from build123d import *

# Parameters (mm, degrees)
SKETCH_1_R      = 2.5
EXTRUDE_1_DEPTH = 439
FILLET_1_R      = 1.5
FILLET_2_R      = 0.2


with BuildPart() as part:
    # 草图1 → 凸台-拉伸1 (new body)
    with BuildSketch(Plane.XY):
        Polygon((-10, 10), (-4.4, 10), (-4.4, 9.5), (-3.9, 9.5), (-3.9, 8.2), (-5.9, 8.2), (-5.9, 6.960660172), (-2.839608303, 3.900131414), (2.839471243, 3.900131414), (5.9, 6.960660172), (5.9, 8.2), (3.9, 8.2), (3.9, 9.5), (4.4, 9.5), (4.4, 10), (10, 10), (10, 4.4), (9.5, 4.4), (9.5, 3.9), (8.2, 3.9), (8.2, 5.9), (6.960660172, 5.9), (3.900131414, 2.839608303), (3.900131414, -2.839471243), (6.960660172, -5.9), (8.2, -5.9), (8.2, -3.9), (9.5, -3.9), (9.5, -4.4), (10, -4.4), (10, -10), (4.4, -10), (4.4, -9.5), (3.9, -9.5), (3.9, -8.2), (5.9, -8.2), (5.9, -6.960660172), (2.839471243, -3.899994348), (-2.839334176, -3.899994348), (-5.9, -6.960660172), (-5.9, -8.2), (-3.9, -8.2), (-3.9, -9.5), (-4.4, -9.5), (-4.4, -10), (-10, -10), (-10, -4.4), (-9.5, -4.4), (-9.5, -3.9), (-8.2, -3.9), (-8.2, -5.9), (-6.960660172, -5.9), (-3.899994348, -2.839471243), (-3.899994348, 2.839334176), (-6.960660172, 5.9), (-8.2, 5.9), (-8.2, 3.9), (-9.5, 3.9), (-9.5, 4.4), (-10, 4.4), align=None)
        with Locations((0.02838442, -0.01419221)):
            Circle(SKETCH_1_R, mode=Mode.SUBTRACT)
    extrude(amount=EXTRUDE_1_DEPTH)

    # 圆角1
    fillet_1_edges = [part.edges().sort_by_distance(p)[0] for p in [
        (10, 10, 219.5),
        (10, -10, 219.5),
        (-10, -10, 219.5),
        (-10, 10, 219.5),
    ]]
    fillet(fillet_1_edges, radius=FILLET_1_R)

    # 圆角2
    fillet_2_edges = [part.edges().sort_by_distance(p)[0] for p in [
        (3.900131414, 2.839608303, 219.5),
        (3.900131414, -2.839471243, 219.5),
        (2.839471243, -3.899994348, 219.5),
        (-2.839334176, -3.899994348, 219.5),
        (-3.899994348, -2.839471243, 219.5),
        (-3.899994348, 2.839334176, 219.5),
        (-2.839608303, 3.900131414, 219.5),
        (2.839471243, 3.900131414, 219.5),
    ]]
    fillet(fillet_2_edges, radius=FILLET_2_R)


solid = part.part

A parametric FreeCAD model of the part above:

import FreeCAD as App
import Part
import Sketcher

V = App.Vector
Q = App.Units.Quantity


def edges_at(feature, points):
    """Names of the edges that pass closest to the given points."""
    edges = feature.Shape.Edges
    near = lambda p: min(range(len(edges)), key=lambda i: edges[i].distToShape(Part.Vertex(*p))[0])
    return sorted({f"Edge{near(p) + 1}" for p in points})


def add_polygon(sketch, points):
    """Adds a closed chain of lines whose ends are joined by coincident constraints."""
    first, n = sketch.GeometryCount, len(points)
    for a, b in zip(points, points[1:] + points[:1]):
        sketch.addGeometry(Part.LineSegment(App.Vector(*a, 0), App.Vector(*b, 0)), False)
    for i in range(n):
        sketch.addConstraint(Sketcher.Constraint("Coincident", first + i, 2, first + (i + 1) % n, 1))

doc = App.newDocument("Part")
body = doc.addObject("PartDesign::Body", "Body")

sketch1 = body.newObject("Sketcher::SketchObject", "Sketch")
sketch1.AttachmentSupport = (doc.getObject("XY_Plane"), [""])
sketch1.MapMode = "FlatFace"
add_polygon(sketch1, [(-4.4, 10), (-10, 10), (-10, 4.4), (-9.5, 4.4), (-9.5, 3.9), (-8.2, 3.9), (-8.2, 5.9), (-6.96066, 5.9), (-3.899994, 2.839334), (-3.899994, -2.839471), (-6.96066, -5.9), (-8.2, -5.9), (-8.2, -3.9), (-9.5, -3.9), (-9.5, -4.4), (-10, -4.4), (-10, -10), (-4.4, -10), (-4.4, -9.5), (-3.9, -9.5), (-3.9, -8.2), (-5.9, -8.2), (-5.9, -6.96066), (-2.839334, -3.899994), (2.839471, -3.899994), (5.9, -6.96066), (5.9, -8.2), (3.9, -8.2), (3.9, -9.5), (4.4, -9.5), (4.4, -10), (10, -10), (10, -4.4), (9.5, -4.4), (9.5, -3.9), (8.2, -3.9), (8.2, -5.9), (6.96066, -5.9), (3.900131, -2.839471), (3.900131, 2.839608), (6.96066, 5.9), (8.2, 5.9), (8.2, 3.9), (9.5, 3.9), (9.5, 4.4), (10, 4.4), (10, 10), (4.4, 10), (4.4, 9.5), (3.9, 9.5), (3.9, 8.2), (5.9, 8.2), (5.9, 6.96066), (2.839471, 3.900131), (-2.839608, 3.900131), (-5.9, 6.96066), (-5.9, 8.2), (-3.9, 8.2), (-3.9, 9.5), (-4.4, 9.5)])
sketch1.addGeometry(Part.Circle(V(0.028384, -0.014192, 0), V(0, 0, 1), 2.5), False)
sketch1.addConstraint([
    Sketcher.Constraint("Horizontal", 0),
    Sketcher.Constraint("Vertical", 1),
    Sketcher.Constraint("Horizontal", 2),
    Sketcher.Constraint("Vertical", 3),
    Sketcher.Constraint("Horizontal", 4),
    Sketcher.Constraint("Vertical", 5),
    Sketcher.Constraint("Horizontal", 6),
    Sketcher.Constraint("Vertical", 8),
    Sketcher.Constraint("Horizontal", 10),
    Sketcher.Constraint("Vertical", 11),
    Sketcher.Constraint("Horizontal", 12),
    Sketcher.Constraint("Vertical", 13),
    Sketcher.Constraint("Horizontal", 14),
    Sketcher.Constraint("Vertical", 15),
    Sketcher.Constraint("Horizontal", 16),
    Sketcher.Constraint("Vertical", 17),
    Sketcher.Constraint("Horizontal", 18),
    Sketcher.Constraint("Vertical", 19),
    Sketcher.Constraint("Horizontal", 20),
    Sketcher.Constraint("Vertical", 21),
    Sketcher.Constraint("Horizontal", 23),
    Sketcher.Constraint("Vertical", 25),
    Sketcher.Constraint("Horizontal", 26),
    Sketcher.Constraint("Vertical", 27),
    Sketcher.Constraint("Horizontal", 28),
    Sketcher.Constraint("Vertical", 29),
    Sketcher.Constraint("Horizontal", 30),
    Sketcher.Constraint("Vertical", 31),
    Sketcher.Constraint("Horizontal", 32),
    Sketcher.Constraint("Vertical", 33),
    Sketcher.Constraint("Horizontal", 34),
    Sketcher.Constraint("Vertical", 35),
    Sketcher.Constraint("Horizontal", 36),
    Sketcher.Constraint("Vertical", 38),
    Sketcher.Constraint("Horizontal", 40),
    Sketcher.Constraint("Vertical", 41),
    Sketcher.Constraint("Horizontal", 42),
    Sketcher.Constraint("Vertical", 43),
    Sketcher.Constraint("Horizontal", 44),
    Sketcher.Constraint("Vertical", 45),
    Sketcher.Constraint("Horizontal", 46),
    Sketcher.Constraint("Vertical", 47),
    Sketcher.Constraint("Horizontal", 48),
    Sketcher.Constraint("Vertical", 49),
    Sketcher.Constraint("Horizontal", 50),
    Sketcher.Constraint("Vertical", 51),
    Sketcher.Constraint("Horizontal", 53),
    Sketcher.Constraint("Vertical", 55),
    Sketcher.Constraint("Horizontal", 56),
    Sketcher.Constraint("Vertical", 57),
    Sketcher.Constraint("Horizontal", 58),
    Sketcher.Constraint("Vertical", 59),
    Sketcher.Constraint("Symmetric", 0, 2, 30, 2, -1, 1),
    Sketcher.Constraint("Symmetric", 2, 2, 32, 2, -1, 1),
    Sketcher.Constraint("Symmetric", 4, 2, 34, 2, -1, 1),
    Sketcher.Constraint("Symmetric", 6, 2, 36, 2, -1, 1),
    Sketcher.Constraint("Symmetric", 9, 2, 39, 2, -1, 1),
    Sketcher.Constraint("Symmetric", 11, 2, 41, 2, -1, 1),
    Sketcher.Constraint("Symmetric", 13, 2, 43, 2, -1, 1),
    Sketcher.Constraint("Symmetric", 15, 2, 45, 2, -1, 1),
    Sketcher.Constraint("Symmetric", 17, 2, 47, 2, -1, 1),
    Sketcher.Constraint("Symmetric", 19, 2, 49, 2, -1, 1),
    Sketcher.Constraint("Symmetric", 21, 2, 51, 2, -1, 1),
    Sketcher.Constraint("Symmetric", 24, 2, 54, 2, -1, 1),
    Sketcher.Constraint("Symmetric", 26, 2, 56, 2, -1, 1),
    Sketcher.Constraint("Symmetric", 28, 2, 58, 2, -1, 1),
    Sketcher.Constraint("Symmetric", 21, 2, 24, 2, -2),
    Sketcher.Constraint("Symmetric", 19, 2, 26, 2, -2),
    Sketcher.Constraint("Symmetric", 17, 2, 28, 2, -2),
    Sketcher.Constraint("Symmetric", 15, 2, 30, 2, -2),
    Sketcher.Constraint("Symmetric", 13, 2, 32, 2, -2),
    Sketcher.Constraint("Symmetric", 11, 2, 34, 2, -2),
    Sketcher.Constraint("Symmetric", 9, 2, 36, 2, -2),
    Sketcher.Constraint("Perpendicular", 7, 22),
    Sketcher.Constraint("Perpendicular", 9, 24),
    Sketcher.Constraint("Perpendicular", 22, 37),
    Sketcher.Constraint("Perpendicular", 24, 39),
    Sketcher.Constraint("Perpendicular", 37, 52),
    Sketcher.Constraint("Perpendicular", 39, 54),
    Sketcher.Constraint("Horizontal", 8, 2, 37, 2),
    Sketcher.Constraint("Vertical", 23, 2, 52, 2),
    Sketcher.Constraint("Equal", 14, 18),
    Sketcher.Constraint("Equal", 46, 1),
    Sketcher.Constraint("Equal", 58, 3),
    Sketcher.Constraint("Equal", 56, 5),
    Sketcher.Constraint("Equal", 23, 8),
    Sketcher.Constraint("Equal", 13, 17),
    Sketcher.Constraint("Equal", 42, 19),
    Sketcher.Constraint("Equal", 40, 21),
    Sketcher.Constraint("Equal", 7, 22),
    Sketcher.Constraint("Diameter", 60, 5.0),
    Sketcher.Constraint("DistanceX", 20, 2, 20, 1, 2.0),
    Sketcher.Constraint("Angle", 7, Q("-45 deg")),
    Sketcher.Constraint("DistanceX", 0, 2, 0, 1, 5.6),
    Sketcher.Constraint("DistanceX", 2, 1, 2, 2, 0.5),
    Sketcher.Constraint("DistanceX", 4, 1, 4, 2, 1.3),
    Sketcher.Constraint("DistanceX", 0, 2, -1, 1, 10.0),
    Sketcher.Constraint("DistanceX", 6, 1, 6, 2, 1.23934),
    Sketcher.Constraint("DistanceX", 53, 2, 53, 1, 5.67908),
    Sketcher.Constraint("Distance", 9, 4.328338),
    Sketcher.Constraint("DistanceX", -1, 1, 60, 3, 0.028384),
    Sketcher.Constraint("DistanceY", 60, 3, -1, 1, 0.014192),
])
pad1 = body.newObject("PartDesign::Pad", "Pad")
pad1.Profile = sketch1
pad1.Length = 439
doc.recompute()

fillet = body.newObject("PartDesign::Fillet", "Fillet")
fillet.Base = (pad1, edges_at(pad1, [
    (10, 10, 219.5),
    (10, -10, 219.5),
    (-10, -10, 219.5),
    (-10, 10, 219.5),
]))
fillet.Radius = 1.5
doc.recompute()

fillet2 = body.newObject("PartDesign::Fillet", "Fillet001")
fillet2.Base = (fillet, edges_at(fillet, [
    (3.9, 2.84, 219.5),
    (3.9, -2.839, 219.5),
    (2.839, -3.9, 219.5),
    (-2.839, -3.9, 219.5),
    (-3.9, -2.839, 219.5),
    (-3.9, 2.839, 219.5),
    (-2.84, 3.9, 219.5),
    (2.839, 3.9, 219.5),
]))
fillet2.Radius = 0.2

doc.recompute()
